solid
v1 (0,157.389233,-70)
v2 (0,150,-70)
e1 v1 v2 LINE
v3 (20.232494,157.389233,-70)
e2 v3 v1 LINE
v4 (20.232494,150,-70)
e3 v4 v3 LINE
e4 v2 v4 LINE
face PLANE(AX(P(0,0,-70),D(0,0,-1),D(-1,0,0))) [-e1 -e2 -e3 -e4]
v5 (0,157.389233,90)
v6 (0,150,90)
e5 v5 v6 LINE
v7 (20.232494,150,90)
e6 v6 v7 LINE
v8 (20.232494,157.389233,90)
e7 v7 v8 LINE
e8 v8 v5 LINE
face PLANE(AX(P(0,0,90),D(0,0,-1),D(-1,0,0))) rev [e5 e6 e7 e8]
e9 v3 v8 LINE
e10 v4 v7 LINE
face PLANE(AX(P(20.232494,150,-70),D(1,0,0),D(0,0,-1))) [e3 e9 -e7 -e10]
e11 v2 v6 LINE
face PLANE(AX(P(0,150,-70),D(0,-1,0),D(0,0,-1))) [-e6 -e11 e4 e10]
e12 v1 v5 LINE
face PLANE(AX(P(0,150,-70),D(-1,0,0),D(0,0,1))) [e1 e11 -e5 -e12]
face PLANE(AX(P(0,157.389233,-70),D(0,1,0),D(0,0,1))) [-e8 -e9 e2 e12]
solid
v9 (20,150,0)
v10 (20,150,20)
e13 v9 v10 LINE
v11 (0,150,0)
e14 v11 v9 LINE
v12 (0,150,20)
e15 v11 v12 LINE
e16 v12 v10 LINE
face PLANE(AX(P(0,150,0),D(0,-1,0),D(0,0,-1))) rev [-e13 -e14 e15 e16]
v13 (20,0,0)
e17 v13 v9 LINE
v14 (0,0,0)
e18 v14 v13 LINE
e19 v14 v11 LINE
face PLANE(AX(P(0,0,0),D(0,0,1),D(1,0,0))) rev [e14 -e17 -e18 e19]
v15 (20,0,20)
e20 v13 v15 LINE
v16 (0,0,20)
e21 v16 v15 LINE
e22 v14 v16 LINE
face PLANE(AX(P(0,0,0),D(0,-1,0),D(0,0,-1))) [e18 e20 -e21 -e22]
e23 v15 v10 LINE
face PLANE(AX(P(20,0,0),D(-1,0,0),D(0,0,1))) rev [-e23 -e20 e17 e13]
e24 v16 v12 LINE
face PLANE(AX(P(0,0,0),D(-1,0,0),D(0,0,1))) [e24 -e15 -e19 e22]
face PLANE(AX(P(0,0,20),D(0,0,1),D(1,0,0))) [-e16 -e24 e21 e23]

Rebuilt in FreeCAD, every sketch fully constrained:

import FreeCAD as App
import Part
import Sketcher
Q = App.Units.Quantity


def add_polygon(sketch, points):
    """Adds a closed chain of lines whose ends are joined by coincident constraints."""
    first, n = sketch.GeometryCount, len(points)
    for a, b in zip(points, points[1:] + points[:1]):
        sketch.addGeometry(Part.LineSegment(App.Vector(*a, 0), App.Vector(*b, 0)), False)
    for i in range(n):
        sketch.addConstraint(Sketcher.Constraint("Coincident", first + i, 2, first + (i + 1) % n, 1))

doc = App.newDocument("Part")
body = doc.addObject("PartDesign::Body", "Body")

sketch1 = body.newObject("Sketcher::SketchObject", "Sketch")
sketch1.AttachmentSupport = (doc.getObject("XZ_Plane"), [""])
sketch1.MapMode = "FlatFace"
add_polygon(sketch1, [(20, 0), (0, 0), (0, 20), (20, 20)])
sketch1.addConstraint(Sketcher.Constraint("Horizontal", 0))
sketch1.addConstraint(Sketcher.Constraint("Vertical", 1))
sketch1.addConstraint(Sketcher.Constraint("Horizontal", 2))
sketch1.addConstraint(Sketcher.Constraint("Vertical", 3))
sketch1.addConstraint(Sketcher.Constraint("Coincident", 0, 2, -1, 1))
sketch1.addConstraint(Sketcher.Constraint("Equal", 2, 1))
sketch1.addConstraint(Sketcher.Constraint("DistanceX", 0, 2, 0, 1, Q("20 mm")))
pad1 = body.newObject("PartDesign::Pad", "Pad")
pad1.Profile = sketch1
pad1.Length = 150
pad1.Reversed = True
body2 = doc.addObject("PartDesign::Body", "Body001")

sketch2 = body2.newObject("Sketcher::SketchObject", "Sketch001")
sketch2.AttachmentSupport = (doc.getObject("XY_Plane001"), [""])
sketch2.MapMode = "FlatFace"
sketch2.AttachmentOffset = App.Placement(App.Vector(0, 0, 20), App.Rotation())
add_polygon(sketch2, [(0, 157), (0, 150), (20, 150), (20, 157)])
sketch2.addConstraint(Sketcher.Constraint("Vertical", 0))
sketch2.addConstraint(Sketcher.Constraint("Horizontal", 1))
sketch2.addConstraint(Sketcher.Constraint("Vertical", 2))
sketch2.addConstraint(Sketcher.Constraint("Horizontal", 3))
sketch2.addConstraint(Sketcher.Constraint("PointOnObject", 0, 2, -2))
sketch2.addConstraint(Sketcher.Constraint("DistanceY", -1, 1, 0, 2, Q("150 mm")))
sketch2.addConstraint(Sketcher.Constraint("DistanceX", 1, 1, 1, 2, Q("20.232494 mm")))
sketch2.addConstraint(Sketcher.Constraint("DistanceY", 0, 2, 0, 1, Q("7.389233 mm")))
pad2 = body2.newObject("PartDesign::Pad", "Pad001")
pad2.Profile = sketch2
pad2.Type = "TwoLengths"
pad2.Length = 70
pad2.Length2 = 90

doc.recompute()
